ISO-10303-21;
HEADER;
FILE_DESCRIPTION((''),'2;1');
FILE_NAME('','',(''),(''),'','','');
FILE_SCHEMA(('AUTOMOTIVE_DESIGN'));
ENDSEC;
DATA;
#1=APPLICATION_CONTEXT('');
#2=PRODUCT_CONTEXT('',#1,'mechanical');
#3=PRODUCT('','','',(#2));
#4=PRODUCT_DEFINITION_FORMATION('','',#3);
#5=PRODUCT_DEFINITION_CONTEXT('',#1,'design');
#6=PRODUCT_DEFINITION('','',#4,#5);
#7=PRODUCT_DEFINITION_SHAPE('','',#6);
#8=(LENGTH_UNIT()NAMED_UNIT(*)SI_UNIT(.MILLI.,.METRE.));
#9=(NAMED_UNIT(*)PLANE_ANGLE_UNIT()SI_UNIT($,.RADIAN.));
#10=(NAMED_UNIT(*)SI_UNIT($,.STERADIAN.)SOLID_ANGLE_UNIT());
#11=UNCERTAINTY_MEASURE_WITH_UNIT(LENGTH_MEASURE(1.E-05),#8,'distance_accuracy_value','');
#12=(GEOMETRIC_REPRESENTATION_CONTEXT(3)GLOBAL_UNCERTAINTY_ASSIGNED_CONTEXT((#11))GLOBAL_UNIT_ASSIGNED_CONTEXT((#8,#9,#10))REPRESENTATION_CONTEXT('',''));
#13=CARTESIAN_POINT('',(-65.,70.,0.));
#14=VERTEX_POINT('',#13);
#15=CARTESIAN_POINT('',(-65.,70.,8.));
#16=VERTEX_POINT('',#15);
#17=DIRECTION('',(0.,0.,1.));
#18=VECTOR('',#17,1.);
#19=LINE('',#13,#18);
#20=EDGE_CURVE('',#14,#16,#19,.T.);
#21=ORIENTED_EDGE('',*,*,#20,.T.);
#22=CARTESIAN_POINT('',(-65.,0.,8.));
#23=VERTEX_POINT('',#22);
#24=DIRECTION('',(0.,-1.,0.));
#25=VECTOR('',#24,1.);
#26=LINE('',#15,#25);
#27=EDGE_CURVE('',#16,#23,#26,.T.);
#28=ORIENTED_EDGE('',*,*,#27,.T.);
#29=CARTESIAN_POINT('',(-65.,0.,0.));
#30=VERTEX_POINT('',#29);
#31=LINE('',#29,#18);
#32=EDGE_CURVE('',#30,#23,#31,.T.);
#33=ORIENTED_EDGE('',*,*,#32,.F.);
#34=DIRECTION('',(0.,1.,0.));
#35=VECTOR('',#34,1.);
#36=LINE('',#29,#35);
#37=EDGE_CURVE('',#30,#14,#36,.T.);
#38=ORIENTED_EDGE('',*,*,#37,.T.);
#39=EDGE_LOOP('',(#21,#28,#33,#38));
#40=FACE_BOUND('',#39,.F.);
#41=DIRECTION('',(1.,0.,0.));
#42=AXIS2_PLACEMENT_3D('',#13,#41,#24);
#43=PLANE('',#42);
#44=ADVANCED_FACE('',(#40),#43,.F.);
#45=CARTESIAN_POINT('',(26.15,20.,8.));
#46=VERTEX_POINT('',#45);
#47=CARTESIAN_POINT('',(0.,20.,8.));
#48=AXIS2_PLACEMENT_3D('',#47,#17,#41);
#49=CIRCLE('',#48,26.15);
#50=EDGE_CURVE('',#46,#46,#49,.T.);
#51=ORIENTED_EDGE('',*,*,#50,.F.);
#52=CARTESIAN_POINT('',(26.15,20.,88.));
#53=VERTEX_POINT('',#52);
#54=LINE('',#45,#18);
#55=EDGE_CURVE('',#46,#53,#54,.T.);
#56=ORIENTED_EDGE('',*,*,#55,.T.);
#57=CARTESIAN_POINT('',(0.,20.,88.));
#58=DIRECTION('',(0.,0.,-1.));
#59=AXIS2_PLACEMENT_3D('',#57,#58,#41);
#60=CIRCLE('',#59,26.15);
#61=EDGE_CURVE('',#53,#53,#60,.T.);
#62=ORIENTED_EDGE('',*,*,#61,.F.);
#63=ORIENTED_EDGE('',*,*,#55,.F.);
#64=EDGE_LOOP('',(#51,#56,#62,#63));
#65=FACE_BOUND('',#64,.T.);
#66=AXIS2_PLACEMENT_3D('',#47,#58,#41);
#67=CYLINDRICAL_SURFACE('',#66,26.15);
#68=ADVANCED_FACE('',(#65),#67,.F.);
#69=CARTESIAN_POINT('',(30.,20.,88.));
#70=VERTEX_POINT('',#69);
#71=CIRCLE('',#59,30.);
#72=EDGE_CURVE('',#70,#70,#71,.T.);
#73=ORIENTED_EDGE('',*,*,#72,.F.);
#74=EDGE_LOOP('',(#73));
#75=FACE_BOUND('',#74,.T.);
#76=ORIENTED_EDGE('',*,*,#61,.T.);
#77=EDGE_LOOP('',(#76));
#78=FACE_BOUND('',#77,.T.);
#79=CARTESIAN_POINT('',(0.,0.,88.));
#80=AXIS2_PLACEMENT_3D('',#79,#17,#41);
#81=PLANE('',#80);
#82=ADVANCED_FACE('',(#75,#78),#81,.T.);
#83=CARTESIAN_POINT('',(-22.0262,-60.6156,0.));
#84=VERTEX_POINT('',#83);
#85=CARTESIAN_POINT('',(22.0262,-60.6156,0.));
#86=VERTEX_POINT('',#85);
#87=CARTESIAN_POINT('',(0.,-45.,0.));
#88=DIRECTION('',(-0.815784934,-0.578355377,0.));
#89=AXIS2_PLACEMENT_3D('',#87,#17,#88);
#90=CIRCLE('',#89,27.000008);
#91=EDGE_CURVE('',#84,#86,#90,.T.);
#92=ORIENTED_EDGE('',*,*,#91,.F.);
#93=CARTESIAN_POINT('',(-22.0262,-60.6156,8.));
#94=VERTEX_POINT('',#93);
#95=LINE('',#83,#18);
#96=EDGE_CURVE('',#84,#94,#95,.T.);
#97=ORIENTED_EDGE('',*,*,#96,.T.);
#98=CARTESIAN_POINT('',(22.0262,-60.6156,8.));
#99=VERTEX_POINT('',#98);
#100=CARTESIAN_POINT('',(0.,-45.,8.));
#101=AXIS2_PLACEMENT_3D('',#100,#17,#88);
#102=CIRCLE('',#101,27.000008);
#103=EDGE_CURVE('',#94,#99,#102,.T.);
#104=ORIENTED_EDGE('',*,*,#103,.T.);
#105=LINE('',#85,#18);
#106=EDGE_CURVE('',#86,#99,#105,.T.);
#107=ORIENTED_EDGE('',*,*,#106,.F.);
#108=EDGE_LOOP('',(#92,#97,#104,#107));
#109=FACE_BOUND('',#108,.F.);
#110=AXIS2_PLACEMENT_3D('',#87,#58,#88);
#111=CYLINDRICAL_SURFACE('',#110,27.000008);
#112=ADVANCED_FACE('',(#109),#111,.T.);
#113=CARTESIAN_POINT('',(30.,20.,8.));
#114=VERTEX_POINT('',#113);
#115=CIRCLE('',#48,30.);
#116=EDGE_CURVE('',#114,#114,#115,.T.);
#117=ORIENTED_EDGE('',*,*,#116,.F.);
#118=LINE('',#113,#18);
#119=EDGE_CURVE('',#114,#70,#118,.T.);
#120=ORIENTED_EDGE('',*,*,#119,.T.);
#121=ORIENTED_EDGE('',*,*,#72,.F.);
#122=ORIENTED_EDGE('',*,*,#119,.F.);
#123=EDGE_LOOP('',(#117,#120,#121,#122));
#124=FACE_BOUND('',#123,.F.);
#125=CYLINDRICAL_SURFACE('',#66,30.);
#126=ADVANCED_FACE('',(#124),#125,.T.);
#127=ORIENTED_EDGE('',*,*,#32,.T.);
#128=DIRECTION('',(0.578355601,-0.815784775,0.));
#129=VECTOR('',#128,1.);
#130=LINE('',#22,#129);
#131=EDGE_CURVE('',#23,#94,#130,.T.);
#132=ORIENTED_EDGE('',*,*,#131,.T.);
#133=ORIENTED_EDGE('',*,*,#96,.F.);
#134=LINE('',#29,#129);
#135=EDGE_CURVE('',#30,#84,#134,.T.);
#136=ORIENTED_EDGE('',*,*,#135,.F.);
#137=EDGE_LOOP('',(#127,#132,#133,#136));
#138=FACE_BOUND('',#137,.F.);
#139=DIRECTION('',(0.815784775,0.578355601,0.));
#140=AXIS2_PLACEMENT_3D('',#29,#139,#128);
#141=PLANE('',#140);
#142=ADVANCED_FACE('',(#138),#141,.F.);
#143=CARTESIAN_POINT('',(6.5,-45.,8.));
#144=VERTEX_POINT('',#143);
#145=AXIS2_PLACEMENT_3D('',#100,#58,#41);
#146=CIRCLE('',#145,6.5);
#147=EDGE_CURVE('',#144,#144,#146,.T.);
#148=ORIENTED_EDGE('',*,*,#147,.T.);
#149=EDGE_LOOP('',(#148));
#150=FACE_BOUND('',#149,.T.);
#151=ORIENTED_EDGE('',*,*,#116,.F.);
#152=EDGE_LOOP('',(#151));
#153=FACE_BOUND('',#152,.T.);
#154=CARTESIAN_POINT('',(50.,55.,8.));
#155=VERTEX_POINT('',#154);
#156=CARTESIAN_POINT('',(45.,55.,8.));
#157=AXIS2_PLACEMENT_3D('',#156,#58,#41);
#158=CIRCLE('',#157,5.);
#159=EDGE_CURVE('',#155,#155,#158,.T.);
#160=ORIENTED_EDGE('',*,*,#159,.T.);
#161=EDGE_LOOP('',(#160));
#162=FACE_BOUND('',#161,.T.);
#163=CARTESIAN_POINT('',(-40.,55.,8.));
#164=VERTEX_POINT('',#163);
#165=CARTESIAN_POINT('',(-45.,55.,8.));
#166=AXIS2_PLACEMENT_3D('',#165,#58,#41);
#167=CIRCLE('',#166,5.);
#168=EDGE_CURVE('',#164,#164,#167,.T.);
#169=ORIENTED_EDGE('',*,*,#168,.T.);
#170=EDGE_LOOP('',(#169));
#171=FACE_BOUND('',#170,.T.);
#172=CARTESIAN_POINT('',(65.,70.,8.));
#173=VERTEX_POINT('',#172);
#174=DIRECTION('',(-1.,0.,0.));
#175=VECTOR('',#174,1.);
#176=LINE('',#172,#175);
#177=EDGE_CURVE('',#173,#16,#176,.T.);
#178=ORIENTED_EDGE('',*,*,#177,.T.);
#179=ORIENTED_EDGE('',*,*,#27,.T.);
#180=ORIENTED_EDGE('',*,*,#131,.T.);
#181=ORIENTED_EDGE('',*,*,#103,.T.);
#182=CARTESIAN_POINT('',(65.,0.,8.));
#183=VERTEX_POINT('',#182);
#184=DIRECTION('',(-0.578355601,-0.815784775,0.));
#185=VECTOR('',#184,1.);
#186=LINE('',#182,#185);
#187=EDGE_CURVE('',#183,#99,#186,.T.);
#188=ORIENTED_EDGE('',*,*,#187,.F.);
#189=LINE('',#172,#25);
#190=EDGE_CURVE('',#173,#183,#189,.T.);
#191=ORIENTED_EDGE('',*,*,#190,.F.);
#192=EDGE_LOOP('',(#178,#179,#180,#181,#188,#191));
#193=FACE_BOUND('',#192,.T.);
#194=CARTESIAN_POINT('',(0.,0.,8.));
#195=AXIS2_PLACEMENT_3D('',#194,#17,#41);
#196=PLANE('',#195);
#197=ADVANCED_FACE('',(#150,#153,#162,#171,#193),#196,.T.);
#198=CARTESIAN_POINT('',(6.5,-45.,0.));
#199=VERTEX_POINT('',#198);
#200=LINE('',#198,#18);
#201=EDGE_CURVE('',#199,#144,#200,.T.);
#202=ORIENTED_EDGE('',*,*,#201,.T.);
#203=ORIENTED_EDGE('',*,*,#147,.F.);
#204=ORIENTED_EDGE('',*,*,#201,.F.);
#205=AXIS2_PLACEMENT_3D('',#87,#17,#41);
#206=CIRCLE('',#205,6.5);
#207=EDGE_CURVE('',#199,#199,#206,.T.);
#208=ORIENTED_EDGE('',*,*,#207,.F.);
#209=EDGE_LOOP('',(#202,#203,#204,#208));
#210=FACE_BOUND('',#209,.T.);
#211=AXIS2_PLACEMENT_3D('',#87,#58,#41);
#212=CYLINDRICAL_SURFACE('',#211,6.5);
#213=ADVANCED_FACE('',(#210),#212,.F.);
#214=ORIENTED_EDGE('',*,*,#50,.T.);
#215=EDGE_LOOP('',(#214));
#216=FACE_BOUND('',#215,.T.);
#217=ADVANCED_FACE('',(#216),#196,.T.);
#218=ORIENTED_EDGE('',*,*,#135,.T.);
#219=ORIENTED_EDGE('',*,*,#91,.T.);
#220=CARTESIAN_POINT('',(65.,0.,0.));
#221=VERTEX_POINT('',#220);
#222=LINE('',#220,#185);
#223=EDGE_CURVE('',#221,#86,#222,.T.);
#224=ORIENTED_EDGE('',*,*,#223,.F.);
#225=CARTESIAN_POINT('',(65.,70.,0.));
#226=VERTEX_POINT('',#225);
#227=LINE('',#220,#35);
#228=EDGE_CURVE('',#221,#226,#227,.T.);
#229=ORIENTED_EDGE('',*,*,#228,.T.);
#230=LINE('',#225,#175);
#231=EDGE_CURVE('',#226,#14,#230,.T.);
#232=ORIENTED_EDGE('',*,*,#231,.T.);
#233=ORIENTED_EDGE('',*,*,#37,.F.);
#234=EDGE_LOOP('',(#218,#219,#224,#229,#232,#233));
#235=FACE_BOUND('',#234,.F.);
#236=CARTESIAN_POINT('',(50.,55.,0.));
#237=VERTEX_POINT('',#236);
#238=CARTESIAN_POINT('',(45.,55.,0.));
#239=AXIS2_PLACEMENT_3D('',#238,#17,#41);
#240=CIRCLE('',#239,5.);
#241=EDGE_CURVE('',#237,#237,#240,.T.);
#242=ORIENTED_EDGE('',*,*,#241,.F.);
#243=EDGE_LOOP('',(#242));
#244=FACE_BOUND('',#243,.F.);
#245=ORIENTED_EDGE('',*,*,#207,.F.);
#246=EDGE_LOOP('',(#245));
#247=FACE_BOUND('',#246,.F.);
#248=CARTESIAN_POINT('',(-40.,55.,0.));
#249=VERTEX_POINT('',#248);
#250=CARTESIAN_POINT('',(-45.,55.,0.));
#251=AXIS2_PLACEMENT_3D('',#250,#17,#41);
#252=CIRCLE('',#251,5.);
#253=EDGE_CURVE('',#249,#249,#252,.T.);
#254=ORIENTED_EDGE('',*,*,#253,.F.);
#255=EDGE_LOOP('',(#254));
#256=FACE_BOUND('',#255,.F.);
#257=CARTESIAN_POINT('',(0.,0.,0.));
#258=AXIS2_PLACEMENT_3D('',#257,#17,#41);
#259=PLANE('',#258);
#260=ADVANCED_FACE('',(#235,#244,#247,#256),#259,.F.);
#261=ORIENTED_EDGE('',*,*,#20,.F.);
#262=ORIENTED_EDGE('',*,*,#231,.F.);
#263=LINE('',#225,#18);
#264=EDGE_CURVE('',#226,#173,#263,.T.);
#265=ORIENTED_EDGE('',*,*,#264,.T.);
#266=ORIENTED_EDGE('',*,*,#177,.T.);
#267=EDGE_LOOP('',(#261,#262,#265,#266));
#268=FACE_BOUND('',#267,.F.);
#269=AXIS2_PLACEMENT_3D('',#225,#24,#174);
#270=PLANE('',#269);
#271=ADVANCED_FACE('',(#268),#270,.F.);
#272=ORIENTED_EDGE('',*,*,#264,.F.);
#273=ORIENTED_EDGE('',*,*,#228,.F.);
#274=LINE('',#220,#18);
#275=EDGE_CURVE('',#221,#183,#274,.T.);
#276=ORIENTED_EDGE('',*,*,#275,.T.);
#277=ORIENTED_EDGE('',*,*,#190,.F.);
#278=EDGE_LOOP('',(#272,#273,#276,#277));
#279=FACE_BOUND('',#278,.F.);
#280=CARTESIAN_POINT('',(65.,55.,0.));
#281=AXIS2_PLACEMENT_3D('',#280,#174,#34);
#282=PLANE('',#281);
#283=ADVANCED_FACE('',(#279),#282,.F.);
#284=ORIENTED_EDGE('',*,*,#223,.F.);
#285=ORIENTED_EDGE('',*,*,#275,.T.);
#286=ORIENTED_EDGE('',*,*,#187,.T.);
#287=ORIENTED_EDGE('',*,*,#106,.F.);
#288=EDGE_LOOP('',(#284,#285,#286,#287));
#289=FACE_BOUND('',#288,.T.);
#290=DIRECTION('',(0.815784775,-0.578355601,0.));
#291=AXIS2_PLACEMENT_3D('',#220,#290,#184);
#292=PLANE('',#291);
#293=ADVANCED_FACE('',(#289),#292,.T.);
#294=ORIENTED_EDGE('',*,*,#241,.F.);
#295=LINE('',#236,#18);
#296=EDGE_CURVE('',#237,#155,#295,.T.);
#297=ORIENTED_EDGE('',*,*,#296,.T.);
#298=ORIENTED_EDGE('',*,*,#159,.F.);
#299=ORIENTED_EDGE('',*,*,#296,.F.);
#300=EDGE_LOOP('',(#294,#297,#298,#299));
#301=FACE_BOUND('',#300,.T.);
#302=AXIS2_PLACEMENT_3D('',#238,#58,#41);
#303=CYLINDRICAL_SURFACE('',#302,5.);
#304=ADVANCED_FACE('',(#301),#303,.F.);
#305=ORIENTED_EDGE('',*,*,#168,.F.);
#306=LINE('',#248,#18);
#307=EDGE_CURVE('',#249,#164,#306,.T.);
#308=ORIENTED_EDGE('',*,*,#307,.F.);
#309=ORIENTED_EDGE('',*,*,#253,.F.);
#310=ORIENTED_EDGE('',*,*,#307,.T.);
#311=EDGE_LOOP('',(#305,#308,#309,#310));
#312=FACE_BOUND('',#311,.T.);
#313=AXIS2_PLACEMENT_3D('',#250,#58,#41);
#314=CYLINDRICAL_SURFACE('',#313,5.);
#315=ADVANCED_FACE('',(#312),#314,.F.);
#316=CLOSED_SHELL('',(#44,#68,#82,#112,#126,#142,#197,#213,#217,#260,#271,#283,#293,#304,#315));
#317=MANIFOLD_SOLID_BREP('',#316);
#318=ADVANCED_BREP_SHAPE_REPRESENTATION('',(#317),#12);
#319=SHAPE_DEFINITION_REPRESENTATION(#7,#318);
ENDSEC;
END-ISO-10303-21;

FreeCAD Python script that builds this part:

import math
import FreeCAD as App
import Part
import Sketcher
from FreeCAD import Vector
Q = App.Units.Quantity

doc = App.newDocument("Part")
body = doc.addObject("PartDesign::Body", "Body")

# Sketch on XY plane
sketch1 = body.newObject("Sketcher::SketchObject", "Sketch")
sketch1.AttachmentSupport = (doc.getObject("XY_Plane"), [""])
sketch1.MapMode = "FlatFace"
sketch1.addGeometry(Part.LineSegment(Vector(65, 70, 0), Vector(-65, 70, 0)), False)
sketch1.addGeometry(Part.LineSegment(Vector(-65, 70, 0), Vector(-65, 0, 0)), False)
sketch1.addGeometry(Part.LineSegment(Vector(-65, 0, 0), Vector(-22, -61, 0)), False)
sketch1.addGeometry(Part.ArcOfCircle(Part.Circle(Vector(0, -45, 0), Vector(0, 0, 1), 27), math.radians(-145), math.radians(-35)), False)
sketch1.addGeometry(Part.LineSegment(Vector(22, -61, 0), Vector(65, 0, 0)), False)
sketch1.addGeometry(Part.LineSegment(Vector(65, 0, 0), Vector(65, 70, 0)), False)
sketch1.addGeometry(Part.Circle(Vector(45, 55, 0), Vector(0, 0, 1), 5), False)
sketch1.addGeometry(Part.Circle(Vector(-45, 55, 0), Vector(0, 0, 1), 5), False)
sketch1.addGeometry(Part.Circle(Vector(0, -45, 0), Vector(0, 0, 1), 6), False)
sketch1.addConstraint(Sketcher.Constraint("Coincident", 0, 2, 1, 1))
sketch1.addConstraint(Sketcher.Constraint("Coincident", 1, 2, 2, 1))
sketch1.addConstraint(Sketcher.Constraint("Tangent", 2, 2, 3, 1))
sketch1.addConstraint(Sketcher.Constraint("Tangent", 3, 2, 4, 1))
sketch1.addConstraint(Sketcher.Constraint("Coincident", 4, 2, 5, 1))
sketch1.addConstraint(Sketcher.Constraint("Coincident", 5, 2, 0, 1))
sketch1.addConstraint(Sketcher.Constraint("Horizontal", 0))
sketch1.addConstraint(Sketcher.Constraint("Vertical", 1))
sketch1.addConstraint(Sketcher.Constraint("Vertical", 5))
sketch1.addConstraint(Sketcher.Constraint("Coincident", 8, 3, 3, 3))
sketch1.addConstraint(Sketcher.Constraint("Equal", 6, 7))
sketch1.addConstraint(Sketcher.Constraint("Symmetric", 1, 2, 4, 2, -1, 1))
sketch1.addConstraint(Sketcher.Constraint("Symmetric", 6, 3, 7, 3, -2))
sketch1.addConstraint(Sketcher.Constraint("Symmetric", 2, 2, 3, 2, -2))
sketch1.addConstraint(Sketcher.Constraint("Diameter", 6, Q("10 mm")))
sketch1.addConstraint(Sketcher.Constraint("Diameter", 8, Q("13 mm")))
sketch1.addConstraint(Sketcher.Constraint("DistanceX", 0, 2, 0, 1, Q("130 mm")))
sketch1.addConstraint(Sketcher.Constraint("Radius", 3, Q("27 mm")))
sketch1.addConstraint(Sketcher.Constraint("DistanceX", 0, 2, 7, 3, Q("20 mm")))
sketch1.addConstraint(Sketcher.Constraint("DistanceY", 1, 2, 1, 1, Q("70 mm")))
sketch1.addConstraint(Sketcher.Constraint("DistanceY", 3, 3, -1, 1, Q("45 mm")))
sketch1.addConstraint(Sketcher.Constraint("DistanceY", -1, 1, 6, 3, Q("55 mm")))
pad1 = body.newObject("PartDesign::Pad", "Pad")
pad1.Profile = sketch1
pad1.Length = 8

# Sketch on XY plane
sketch2 = body.newObject("Sketcher::SketchObject", "Sketch001")
sketch2.AttachmentSupport = (doc.getObject("XY_Plane"), [""])
sketch2.MapMode = "FlatFace"
sketch2.AttachmentOffset = App.Placement(Vector(0, 0, 8), App.Rotation())
sketch2.addGeometry(Part.Circle(Vector(0, 20, 0), Vector(0, 0, 1), 30), False)
sketch2.addGeometry(Part.Circle(Vector(0, 20, 0), Vector(0, 0, 1), 26), False)
sketch2.addConstraint(Sketcher.Constraint("Coincident", 1, 3, 0, 3))
sketch2.addConstraint(Sketcher.Constraint("PointOnObject", 0, 3, -2))
sketch2.addConstraint(Sketcher.Constraint("Diameter", 0, Q("60 mm")))
sketch2.addConstraint(Sketcher.Constraint("Diameter", 1, Q("52.3 mm")))
sketch2.addConstraint(Sketcher.Constraint("DistanceY", -1, 1, 0, 3, Q("20 mm")))
pad2 = body.newObject("PartDesign::Pad", "Pad001")
pad2.Profile = sketch2
pad2.Length = 80

doc.recompute()
